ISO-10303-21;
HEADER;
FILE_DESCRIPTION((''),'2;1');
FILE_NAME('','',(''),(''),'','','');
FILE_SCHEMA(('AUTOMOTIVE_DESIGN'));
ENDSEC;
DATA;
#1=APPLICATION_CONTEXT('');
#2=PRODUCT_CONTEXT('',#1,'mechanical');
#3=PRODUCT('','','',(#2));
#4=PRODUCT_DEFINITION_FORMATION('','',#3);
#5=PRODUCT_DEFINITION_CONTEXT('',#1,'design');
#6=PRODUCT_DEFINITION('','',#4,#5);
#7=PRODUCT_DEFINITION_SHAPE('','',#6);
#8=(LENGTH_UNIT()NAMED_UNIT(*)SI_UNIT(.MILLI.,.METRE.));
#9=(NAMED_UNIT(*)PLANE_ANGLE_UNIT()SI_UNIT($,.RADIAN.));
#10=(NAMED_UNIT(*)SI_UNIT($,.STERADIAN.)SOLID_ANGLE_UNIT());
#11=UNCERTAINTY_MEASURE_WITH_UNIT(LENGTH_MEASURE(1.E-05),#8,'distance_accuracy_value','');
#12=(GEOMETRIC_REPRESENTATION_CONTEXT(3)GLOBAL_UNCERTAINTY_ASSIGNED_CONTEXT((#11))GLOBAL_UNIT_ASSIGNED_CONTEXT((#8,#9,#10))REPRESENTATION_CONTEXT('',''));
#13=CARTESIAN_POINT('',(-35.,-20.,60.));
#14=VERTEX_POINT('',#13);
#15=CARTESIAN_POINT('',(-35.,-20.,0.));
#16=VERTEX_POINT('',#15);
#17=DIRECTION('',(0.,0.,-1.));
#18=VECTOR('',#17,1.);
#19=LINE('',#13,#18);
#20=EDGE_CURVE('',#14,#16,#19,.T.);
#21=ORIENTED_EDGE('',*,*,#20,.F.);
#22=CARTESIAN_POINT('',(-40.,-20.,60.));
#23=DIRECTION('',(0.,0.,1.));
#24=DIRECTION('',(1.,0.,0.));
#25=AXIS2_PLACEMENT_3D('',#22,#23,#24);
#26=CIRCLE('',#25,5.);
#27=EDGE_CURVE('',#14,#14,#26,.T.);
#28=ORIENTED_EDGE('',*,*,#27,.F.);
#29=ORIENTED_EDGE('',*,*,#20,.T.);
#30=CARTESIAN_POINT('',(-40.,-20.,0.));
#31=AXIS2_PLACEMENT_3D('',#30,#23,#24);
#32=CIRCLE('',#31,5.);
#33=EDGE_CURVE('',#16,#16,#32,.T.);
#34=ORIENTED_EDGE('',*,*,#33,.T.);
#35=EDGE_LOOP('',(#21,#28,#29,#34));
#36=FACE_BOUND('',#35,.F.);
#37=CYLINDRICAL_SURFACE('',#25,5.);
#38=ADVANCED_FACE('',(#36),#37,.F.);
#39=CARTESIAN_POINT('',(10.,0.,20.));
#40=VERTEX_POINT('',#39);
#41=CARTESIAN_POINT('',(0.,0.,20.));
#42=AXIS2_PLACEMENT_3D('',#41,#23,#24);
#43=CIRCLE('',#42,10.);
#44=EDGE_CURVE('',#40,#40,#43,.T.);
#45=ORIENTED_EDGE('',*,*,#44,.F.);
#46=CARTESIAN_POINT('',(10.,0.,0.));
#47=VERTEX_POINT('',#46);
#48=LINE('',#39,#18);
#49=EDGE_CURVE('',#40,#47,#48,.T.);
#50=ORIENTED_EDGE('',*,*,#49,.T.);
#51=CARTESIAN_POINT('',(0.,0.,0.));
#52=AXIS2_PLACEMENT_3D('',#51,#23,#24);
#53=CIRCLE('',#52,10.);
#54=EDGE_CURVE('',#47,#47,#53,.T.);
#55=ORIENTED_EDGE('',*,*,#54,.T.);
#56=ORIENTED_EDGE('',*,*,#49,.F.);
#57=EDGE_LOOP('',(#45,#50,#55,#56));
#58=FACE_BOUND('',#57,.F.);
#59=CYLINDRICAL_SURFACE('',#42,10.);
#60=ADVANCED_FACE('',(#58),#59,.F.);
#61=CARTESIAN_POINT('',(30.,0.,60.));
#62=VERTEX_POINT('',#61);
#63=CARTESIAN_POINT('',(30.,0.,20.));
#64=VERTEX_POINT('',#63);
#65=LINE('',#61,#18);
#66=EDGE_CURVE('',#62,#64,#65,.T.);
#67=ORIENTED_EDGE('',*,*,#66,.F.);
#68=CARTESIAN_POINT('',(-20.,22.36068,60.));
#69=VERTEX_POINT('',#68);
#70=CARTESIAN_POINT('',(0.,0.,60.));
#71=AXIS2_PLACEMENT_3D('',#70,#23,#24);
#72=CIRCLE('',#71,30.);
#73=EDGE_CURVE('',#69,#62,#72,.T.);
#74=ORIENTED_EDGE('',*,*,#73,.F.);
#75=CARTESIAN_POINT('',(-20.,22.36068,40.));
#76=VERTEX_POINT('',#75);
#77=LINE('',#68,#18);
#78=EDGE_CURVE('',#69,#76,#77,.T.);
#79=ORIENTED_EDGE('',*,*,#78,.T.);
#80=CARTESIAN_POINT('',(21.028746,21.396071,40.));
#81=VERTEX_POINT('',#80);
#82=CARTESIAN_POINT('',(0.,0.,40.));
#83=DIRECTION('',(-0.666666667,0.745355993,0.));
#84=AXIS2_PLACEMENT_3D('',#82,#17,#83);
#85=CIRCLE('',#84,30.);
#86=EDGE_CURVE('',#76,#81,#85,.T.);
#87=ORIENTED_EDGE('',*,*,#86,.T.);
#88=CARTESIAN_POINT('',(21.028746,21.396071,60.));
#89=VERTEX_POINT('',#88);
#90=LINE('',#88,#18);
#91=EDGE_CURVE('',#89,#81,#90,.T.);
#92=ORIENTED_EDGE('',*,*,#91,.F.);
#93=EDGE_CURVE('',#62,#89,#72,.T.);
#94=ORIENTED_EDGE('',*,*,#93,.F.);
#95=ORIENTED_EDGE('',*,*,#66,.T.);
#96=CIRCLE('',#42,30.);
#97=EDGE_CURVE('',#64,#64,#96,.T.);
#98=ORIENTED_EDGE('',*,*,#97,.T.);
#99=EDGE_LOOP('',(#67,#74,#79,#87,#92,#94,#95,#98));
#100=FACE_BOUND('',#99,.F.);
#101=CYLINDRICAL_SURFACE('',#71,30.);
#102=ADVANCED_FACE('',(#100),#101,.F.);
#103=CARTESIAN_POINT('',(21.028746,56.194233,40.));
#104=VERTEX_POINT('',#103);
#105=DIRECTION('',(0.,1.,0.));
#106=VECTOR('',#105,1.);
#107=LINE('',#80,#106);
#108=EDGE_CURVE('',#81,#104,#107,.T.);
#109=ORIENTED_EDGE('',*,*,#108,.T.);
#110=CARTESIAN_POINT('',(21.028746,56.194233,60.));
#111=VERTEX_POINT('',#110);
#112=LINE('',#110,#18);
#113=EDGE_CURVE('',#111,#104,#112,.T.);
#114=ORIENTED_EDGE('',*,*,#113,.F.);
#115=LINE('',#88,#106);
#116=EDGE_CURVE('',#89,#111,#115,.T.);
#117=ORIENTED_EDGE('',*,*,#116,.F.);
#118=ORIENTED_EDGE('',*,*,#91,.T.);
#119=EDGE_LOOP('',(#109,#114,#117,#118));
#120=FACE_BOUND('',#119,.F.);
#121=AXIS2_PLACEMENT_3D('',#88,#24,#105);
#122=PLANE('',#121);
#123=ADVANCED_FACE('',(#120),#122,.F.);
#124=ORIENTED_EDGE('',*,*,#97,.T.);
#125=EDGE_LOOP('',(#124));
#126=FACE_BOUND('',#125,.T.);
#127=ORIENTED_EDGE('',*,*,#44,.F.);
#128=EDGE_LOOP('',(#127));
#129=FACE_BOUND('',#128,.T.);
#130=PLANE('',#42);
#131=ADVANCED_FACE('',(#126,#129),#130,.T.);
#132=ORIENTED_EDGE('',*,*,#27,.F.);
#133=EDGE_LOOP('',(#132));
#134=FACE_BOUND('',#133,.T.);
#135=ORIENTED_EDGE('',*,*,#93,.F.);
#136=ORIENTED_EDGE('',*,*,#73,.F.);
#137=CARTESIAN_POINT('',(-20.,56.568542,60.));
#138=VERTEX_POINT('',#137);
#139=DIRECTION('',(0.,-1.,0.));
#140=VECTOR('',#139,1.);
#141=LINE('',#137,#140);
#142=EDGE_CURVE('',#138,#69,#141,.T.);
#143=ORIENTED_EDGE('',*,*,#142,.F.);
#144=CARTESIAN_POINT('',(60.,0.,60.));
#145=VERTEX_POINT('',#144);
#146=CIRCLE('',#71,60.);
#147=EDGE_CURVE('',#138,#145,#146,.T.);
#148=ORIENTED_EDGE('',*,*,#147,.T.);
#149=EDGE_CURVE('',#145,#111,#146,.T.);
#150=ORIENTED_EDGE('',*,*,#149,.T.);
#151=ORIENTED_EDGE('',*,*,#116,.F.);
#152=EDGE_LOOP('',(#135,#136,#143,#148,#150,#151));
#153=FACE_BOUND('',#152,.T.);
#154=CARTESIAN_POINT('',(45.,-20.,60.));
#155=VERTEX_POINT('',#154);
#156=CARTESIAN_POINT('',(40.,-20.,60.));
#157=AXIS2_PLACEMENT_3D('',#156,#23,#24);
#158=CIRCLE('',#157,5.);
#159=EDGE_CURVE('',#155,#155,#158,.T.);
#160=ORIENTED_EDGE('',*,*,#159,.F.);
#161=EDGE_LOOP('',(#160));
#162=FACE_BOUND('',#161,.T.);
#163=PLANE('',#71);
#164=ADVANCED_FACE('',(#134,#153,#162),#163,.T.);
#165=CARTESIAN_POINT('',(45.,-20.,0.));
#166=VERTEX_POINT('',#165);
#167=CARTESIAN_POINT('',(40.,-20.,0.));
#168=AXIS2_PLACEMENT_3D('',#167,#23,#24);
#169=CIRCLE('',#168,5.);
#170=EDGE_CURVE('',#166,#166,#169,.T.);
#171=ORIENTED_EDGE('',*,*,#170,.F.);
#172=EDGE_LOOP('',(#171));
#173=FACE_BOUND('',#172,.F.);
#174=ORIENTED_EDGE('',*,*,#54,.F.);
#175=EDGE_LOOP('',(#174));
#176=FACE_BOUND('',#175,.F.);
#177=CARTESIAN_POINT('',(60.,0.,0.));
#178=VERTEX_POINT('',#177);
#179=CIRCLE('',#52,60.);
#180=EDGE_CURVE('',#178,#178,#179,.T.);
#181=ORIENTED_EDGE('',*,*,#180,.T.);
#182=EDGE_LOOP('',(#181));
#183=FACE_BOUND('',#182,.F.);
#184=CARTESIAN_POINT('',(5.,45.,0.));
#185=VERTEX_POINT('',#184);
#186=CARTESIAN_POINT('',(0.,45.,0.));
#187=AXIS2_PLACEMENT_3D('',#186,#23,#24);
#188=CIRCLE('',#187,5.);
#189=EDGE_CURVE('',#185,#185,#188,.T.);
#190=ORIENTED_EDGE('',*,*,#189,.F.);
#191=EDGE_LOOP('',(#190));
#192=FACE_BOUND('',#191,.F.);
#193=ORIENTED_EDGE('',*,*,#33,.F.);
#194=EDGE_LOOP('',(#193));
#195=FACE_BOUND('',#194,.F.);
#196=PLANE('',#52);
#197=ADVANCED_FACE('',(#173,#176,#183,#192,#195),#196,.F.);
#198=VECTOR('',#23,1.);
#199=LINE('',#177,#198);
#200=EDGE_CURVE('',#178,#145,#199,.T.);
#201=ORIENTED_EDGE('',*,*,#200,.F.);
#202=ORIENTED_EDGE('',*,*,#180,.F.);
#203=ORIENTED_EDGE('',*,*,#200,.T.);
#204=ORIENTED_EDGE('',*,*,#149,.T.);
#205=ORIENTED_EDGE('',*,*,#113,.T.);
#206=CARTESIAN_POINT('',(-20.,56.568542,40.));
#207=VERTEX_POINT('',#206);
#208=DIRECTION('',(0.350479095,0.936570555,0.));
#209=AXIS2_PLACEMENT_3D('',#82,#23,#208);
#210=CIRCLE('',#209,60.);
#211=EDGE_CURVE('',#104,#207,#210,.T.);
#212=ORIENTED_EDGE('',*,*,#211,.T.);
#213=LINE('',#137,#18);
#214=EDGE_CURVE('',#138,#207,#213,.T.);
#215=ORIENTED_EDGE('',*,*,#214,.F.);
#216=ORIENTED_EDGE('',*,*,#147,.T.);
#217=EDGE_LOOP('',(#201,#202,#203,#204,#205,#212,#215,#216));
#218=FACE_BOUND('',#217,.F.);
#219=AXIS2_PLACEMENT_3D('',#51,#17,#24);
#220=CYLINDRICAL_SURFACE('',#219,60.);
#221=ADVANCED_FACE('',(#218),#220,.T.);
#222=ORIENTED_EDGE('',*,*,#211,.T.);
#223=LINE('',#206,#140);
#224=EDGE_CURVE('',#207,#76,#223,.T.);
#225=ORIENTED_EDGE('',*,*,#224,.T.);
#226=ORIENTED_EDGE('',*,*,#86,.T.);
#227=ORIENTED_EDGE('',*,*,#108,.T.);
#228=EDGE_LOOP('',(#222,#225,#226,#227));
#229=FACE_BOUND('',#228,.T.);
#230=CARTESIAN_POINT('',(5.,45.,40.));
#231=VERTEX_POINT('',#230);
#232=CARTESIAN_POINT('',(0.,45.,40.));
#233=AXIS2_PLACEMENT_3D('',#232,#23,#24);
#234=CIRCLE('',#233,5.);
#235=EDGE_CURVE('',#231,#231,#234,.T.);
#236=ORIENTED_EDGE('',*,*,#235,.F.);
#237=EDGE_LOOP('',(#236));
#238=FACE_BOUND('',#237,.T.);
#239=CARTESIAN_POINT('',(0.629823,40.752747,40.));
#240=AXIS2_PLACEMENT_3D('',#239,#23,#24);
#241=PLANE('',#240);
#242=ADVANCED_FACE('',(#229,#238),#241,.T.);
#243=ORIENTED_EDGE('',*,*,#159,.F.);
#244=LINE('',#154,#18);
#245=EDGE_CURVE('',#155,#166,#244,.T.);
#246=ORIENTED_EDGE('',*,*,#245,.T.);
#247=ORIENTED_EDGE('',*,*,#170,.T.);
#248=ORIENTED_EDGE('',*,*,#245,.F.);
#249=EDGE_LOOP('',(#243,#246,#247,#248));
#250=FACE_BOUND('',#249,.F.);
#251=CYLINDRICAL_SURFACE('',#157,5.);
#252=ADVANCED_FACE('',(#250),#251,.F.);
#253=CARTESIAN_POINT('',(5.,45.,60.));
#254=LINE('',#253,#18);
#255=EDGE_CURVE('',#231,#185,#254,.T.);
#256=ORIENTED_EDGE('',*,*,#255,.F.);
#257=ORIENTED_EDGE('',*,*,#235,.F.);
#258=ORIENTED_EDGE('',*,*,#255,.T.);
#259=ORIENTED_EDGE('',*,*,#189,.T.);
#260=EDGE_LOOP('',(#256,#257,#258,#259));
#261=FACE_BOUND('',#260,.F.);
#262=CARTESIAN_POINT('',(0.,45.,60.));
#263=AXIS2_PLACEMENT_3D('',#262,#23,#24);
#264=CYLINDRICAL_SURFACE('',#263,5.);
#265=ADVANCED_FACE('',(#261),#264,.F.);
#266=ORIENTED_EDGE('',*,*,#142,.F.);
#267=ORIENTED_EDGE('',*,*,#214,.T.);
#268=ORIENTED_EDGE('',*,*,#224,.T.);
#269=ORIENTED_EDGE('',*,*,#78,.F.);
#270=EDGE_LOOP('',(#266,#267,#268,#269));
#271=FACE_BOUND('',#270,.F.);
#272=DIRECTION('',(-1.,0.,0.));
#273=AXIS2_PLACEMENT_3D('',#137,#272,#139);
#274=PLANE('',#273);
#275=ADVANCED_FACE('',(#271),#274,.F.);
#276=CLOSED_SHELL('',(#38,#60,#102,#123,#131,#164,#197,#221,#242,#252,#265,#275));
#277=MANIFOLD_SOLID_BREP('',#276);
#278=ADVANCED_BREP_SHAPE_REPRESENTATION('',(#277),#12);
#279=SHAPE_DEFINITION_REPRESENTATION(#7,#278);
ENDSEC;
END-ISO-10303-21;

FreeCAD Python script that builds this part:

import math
import FreeCAD as App
import Part
import Sketcher
from FreeCAD import Vector
Q = App.Units.Quantity

doc = App.newDocument("Part")
body = doc.addObject("PartDesign::Body", "Body")

# Sketch on XY plane
sketch1 = body.newObject("Sketcher::SketchObject", "Sketch")
sketch1.AttachmentSupport = (doc.getObject("XY_Plane"), [""])
sketch1.MapMode = "FlatFace"
sketch1.addGeometry(Part.Circle(Vector(0, 0, 0), Vector(0, 0, 1), 60), False)
sketch1.addConstraint(Sketcher.Constraint("Coincident", 0, 3, -1, 1))
sketch1.addConstraint(Sketcher.Constraint("Diameter", 0, Q("120 mm")))
pad1 = body.newObject("PartDesign::Pad", "Pad")
pad1.Profile = sketch1
pad1.Length = 60

# Sketch on XY plane
sketch2 = body.newObject("Sketcher::SketchObject", "Sketch001")
sketch2.AttachmentSupport = (doc.getObject("XY_Plane"), [""])
sketch2.MapMode = "FlatFace"
sketch2.AttachmentOffset = App.Placement(Vector(0, 0, 60), App.Rotation())
sketch2.addGeometry(Part.Circle(Vector(0, 0, 0), Vector(0, 0, 1), 30), False)
sketch2.addConstraint(Sketcher.Constraint("Coincident", 0, 3, -1, 1))
sketch2.addConstraint(Sketcher.Constraint("Diameter", 0, Q("60 mm")))
pocket1 = body.newObject("PartDesign::Pocket", "Pocket")
pocket1.Profile = sketch2
pocket1.Length = 40

# Sketch on XY plane
sketch3 = body.newObject("Sketcher::SketchObject", "Sketch002")
sketch3.AttachmentSupport = (doc.getObject("XY_Plane"), [""])
sketch3.MapMode = "FlatFace"
sketch3.AttachmentOffset = App.Placement(Vector(0, 0, 20), App.Rotation())
sketch3.addGeometry(Part.Circle(Vector(0, 0, 0), Vector(0, 0, 1), 10), False)
sketch3.addConstraint(Sketcher.Constraint("Coincident", 0, 3, -1, 1))
sketch3.addConstraint(Sketcher.Constraint("Diameter", 0, Q("20 mm")))
pocket2 = body.newObject("PartDesign::Pocket", "Pocket001")
pocket2.Profile = sketch3
pocket2.Length = 40

# Sketch on XY plane
sketch4 = body.newObject("Sketcher::SketchObject", "Sketch003")
sketch4.AttachmentSupport = (doc.getObject("XY_Plane"), [""])
sketch4.MapMode = "FlatFace"
sketch4.AttachmentOffset = App.Placement(Vector(0, 0, 60), App.Rotation())
sketch4.addGeometry(Part.Circle(Vector(0, 45, 0), Vector(0, 0, 1), 5), False)
sketch4.addConstraint(Sketcher.Constraint("PointOnObject", 0, 3, -2))
sketch4.addConstraint(Sketcher.Constraint("Diameter", 0, Q("10 mm")))
sketch4.addConstraint(Sketcher.Constraint("DistanceY", -1, 1, 0, 3, Q("45 mm")))
pocket3 = body.newObject("PartDesign::Pocket", "Pocket002")
pocket3.Profile = sketch4
pocket3.Length = 100

# Sketch on XY plane
sketch5 = body.newObject("Sketcher::SketchObject", "Sketch004")
sketch5.AttachmentSupport = (doc.getObject("XY_Plane"), [""])
sketch5.MapMode = "FlatFace"
sketch5.AttachmentOffset = App.Placement(Vector(0, 0, 60), App.Rotation())
sketch5.addGeometry(Part.Circle(Vector(-40, -20, 0), Vector(0, 0, 1), 5), False)
sketch5.addGeometry(Part.Circle(Vector(40, -20, 0), Vector(0, 0, 1), 5), False)
sketch5.addConstraint(Sketcher.Constraint("Equal", 0, 1))
sketch5.addConstraint(Sketcher.Constraint("Symmetric", 0, 3, 1, 3, -2))
sketch5.addConstraint(Sketcher.Constraint("Diameter", 0, Q("10 mm")))
sketch5.addConstraint(Sketcher.Constraint("DistanceX", 0, 3, -1, 1, Q("40 mm")))
sketch5.addConstraint(Sketcher.Constraint("DistanceY", 0, 3, -1, 1, Q("20 mm")))
pocket4 = body.newObject("PartDesign::Pocket", "Pocket003")
pocket4.Profile = sketch5
pocket4.Length = 100

# Sketch on XY plane
sketch6 = body.newObject("Sketcher::SketchObject", "Sketch005")
sketch6.AttachmentSupport = (doc.getObject("XY_Plane"), [""])
sketch6.MapMode = "FlatFace"
sketch6.AttachmentOffset = App.Placement(Vector(0, 0, 60), App.Rotation())
sketch6.addGeometry(Part.LineSegment(Vector(-20, 57, 0), Vector(-20, 22, 0)), False)
sketch6.addGeometry(Part.ArcOfCircle(Part.Circle(Vector(0, 0, 0), Vector(0, 0, 1), 30), math.radians(45), math.radians(132)), False)
sketch6.addGeometry(Part.LineSegment(Vector(21, 21, 0), Vector(21, 56, 0)), False)
sketch6.addGeometry(Part.ArcOfCircle(Part.Circle(Vector(0, 0, 0), Vector(0, 0, 1), 60), math.radians(69), math.radians(109)), False)
sketch6.addConstraint(Sketcher.Constraint("Coincident", 0, 2, 1, 2))
sketch6.addConstraint(Sketcher.Constraint("Coincident", 1, 1, 2, 1))
sketch6.addConstraint(Sketcher.Constraint("Coincident", 2, 2, 3, 1))
sketch6.addConstraint(Sketcher.Constraint("Coincident", 3, 2, 0, 1))
sketch6.addConstraint(Sketcher.Constraint("Vertical", 0))
sketch6.addConstraint(Sketcher.Constraint("Vertical", 2))
sketch6.addConstraint(Sketcher.Constraint("Coincident", 1, 3, -1, 1))
sketch6.addConstraint(Sketcher.Constraint("Coincident", 3, 3, -1, 1))
sketch6.addConstraint(Sketcher.Constraint("Radius", 1, Q("30 mm")))
sketch6.addConstraint(Sketcher.Constraint("Radius", 3, Q("60 mm")))
sketch6.addConstraint(Sketcher.Constraint("DistanceX", 0, 2, -1, 1, Q("20 mm")))
sketch6.addConstraint(Sketcher.Constraint("DistanceY", 2, 1, 2, 2, Q("34.798162 mm")))
pocket5 = body.newObject("PartDesign::Pocket", "Pocket004")
pocket5.Profile = sketch6
pocket5.Length = 20

doc.recompute()
